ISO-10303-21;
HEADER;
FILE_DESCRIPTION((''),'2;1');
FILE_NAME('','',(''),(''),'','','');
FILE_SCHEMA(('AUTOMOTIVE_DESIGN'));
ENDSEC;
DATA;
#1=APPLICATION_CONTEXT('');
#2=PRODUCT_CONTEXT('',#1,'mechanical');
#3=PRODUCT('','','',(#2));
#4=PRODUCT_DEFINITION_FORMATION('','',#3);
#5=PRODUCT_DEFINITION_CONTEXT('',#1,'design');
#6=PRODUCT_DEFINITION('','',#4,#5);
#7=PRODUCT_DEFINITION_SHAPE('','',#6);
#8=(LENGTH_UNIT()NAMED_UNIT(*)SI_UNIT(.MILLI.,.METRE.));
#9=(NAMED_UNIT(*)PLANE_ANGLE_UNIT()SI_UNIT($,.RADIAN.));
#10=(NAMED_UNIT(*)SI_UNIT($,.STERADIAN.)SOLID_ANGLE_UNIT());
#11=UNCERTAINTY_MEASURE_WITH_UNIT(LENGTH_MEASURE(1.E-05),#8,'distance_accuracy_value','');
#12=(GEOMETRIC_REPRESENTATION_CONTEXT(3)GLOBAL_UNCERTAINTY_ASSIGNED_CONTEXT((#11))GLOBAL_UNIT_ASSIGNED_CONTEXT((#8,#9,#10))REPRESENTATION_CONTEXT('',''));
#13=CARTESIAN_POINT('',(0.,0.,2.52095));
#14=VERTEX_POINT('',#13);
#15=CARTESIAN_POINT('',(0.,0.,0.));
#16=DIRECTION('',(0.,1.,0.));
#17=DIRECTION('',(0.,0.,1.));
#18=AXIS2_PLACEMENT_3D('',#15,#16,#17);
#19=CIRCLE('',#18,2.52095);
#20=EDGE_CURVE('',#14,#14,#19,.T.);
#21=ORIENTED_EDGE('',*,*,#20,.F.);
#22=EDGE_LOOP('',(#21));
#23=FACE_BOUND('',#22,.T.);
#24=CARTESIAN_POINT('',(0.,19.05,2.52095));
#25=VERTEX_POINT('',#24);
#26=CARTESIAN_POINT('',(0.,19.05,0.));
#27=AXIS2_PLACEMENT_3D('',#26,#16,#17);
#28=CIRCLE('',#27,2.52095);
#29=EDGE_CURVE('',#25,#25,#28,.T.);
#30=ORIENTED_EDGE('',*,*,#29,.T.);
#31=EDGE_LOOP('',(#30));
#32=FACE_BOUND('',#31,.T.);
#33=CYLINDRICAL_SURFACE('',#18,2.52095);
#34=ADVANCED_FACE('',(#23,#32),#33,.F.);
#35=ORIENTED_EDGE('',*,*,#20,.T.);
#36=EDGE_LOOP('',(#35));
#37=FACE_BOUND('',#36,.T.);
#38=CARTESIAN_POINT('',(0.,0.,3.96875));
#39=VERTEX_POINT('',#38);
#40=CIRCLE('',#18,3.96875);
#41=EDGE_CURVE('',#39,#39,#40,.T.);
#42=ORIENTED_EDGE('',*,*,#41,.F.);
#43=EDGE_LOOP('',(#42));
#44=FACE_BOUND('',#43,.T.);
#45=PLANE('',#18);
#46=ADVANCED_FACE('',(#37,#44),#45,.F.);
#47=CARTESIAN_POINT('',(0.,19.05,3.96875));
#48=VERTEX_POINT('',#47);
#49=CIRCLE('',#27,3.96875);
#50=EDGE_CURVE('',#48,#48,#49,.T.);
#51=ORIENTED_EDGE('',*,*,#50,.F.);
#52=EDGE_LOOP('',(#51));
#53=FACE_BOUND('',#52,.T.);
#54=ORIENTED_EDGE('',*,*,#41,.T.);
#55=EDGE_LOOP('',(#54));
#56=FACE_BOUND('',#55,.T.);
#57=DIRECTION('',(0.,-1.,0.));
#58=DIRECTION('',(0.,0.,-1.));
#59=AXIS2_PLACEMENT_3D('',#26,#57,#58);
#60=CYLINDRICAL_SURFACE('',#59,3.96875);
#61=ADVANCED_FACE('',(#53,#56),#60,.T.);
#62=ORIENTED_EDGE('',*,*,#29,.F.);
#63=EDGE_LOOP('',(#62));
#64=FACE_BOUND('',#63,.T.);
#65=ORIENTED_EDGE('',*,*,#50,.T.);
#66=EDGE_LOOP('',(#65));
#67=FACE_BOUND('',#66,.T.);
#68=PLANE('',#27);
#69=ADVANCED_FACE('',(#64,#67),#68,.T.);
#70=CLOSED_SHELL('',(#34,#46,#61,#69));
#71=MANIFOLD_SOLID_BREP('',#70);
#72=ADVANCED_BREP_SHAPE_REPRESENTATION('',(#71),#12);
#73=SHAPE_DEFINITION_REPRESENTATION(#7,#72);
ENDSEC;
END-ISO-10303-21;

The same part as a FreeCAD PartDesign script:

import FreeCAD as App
import Part
import Sketcher
Q = App.Units.Quantity

doc = App.newDocument("Part")
body = doc.addObject("PartDesign::Body", "Body")

# Sketch on XZ plane
sketch1 = body.newObject("Sketcher::SketchObject", "Sketch")
sketch1.AttachmentSupport = (doc.getObject("XZ_Plane"), [""])
sketch1.MapMode = "FlatFace"
sketch1.addGeometry(Part.Circle(App.Vector(0, 0, 0), App.Vector(0, 0, 1), 4), False)
sketch1.addConstraint([
    Sketcher.Constraint("Coincident", 0, 3, -1, 1),
    Sketcher.Constraint("Diameter", 0, Q("0.3125 in")),
])
pad1 = body.newObject("PartDesign::Pad", "Pad")
pad1.Profile = sketch1
pad1.Length = Q("0.75 in")
pad1.Reversed = True

# Sketch on XZ plane
sketch2 = body.newObject("Sketcher::SketchObject", "Sketch001")
sketch2.AttachmentSupport = (doc.getObject("XZ_Plane"), [""])
sketch2.MapMode = "FlatFace"
sketch2.AttachmentOffset = App.Placement(App.Vector(0, 0, -0.75 * 25.4), App.Rotation())
sketch2.addGeometry(Part.Circle(App.Vector(0, 0, 0), App.Vector(0, 0, 1), 2.5), False)
sketch2.addConstraint([
    Sketcher.Constraint("Coincident", 0, 3, -1, 1),
    Sketcher.Constraint("Diameter", 0, Q("0.1985 in")),
])
pocket1 = body.newObject("PartDesign::Pocket", "Pocket")
pocket1.Profile = sketch2
pocket1.Type = "ThroughAll"
pocket1.Midplane = True

doc.recompute()
